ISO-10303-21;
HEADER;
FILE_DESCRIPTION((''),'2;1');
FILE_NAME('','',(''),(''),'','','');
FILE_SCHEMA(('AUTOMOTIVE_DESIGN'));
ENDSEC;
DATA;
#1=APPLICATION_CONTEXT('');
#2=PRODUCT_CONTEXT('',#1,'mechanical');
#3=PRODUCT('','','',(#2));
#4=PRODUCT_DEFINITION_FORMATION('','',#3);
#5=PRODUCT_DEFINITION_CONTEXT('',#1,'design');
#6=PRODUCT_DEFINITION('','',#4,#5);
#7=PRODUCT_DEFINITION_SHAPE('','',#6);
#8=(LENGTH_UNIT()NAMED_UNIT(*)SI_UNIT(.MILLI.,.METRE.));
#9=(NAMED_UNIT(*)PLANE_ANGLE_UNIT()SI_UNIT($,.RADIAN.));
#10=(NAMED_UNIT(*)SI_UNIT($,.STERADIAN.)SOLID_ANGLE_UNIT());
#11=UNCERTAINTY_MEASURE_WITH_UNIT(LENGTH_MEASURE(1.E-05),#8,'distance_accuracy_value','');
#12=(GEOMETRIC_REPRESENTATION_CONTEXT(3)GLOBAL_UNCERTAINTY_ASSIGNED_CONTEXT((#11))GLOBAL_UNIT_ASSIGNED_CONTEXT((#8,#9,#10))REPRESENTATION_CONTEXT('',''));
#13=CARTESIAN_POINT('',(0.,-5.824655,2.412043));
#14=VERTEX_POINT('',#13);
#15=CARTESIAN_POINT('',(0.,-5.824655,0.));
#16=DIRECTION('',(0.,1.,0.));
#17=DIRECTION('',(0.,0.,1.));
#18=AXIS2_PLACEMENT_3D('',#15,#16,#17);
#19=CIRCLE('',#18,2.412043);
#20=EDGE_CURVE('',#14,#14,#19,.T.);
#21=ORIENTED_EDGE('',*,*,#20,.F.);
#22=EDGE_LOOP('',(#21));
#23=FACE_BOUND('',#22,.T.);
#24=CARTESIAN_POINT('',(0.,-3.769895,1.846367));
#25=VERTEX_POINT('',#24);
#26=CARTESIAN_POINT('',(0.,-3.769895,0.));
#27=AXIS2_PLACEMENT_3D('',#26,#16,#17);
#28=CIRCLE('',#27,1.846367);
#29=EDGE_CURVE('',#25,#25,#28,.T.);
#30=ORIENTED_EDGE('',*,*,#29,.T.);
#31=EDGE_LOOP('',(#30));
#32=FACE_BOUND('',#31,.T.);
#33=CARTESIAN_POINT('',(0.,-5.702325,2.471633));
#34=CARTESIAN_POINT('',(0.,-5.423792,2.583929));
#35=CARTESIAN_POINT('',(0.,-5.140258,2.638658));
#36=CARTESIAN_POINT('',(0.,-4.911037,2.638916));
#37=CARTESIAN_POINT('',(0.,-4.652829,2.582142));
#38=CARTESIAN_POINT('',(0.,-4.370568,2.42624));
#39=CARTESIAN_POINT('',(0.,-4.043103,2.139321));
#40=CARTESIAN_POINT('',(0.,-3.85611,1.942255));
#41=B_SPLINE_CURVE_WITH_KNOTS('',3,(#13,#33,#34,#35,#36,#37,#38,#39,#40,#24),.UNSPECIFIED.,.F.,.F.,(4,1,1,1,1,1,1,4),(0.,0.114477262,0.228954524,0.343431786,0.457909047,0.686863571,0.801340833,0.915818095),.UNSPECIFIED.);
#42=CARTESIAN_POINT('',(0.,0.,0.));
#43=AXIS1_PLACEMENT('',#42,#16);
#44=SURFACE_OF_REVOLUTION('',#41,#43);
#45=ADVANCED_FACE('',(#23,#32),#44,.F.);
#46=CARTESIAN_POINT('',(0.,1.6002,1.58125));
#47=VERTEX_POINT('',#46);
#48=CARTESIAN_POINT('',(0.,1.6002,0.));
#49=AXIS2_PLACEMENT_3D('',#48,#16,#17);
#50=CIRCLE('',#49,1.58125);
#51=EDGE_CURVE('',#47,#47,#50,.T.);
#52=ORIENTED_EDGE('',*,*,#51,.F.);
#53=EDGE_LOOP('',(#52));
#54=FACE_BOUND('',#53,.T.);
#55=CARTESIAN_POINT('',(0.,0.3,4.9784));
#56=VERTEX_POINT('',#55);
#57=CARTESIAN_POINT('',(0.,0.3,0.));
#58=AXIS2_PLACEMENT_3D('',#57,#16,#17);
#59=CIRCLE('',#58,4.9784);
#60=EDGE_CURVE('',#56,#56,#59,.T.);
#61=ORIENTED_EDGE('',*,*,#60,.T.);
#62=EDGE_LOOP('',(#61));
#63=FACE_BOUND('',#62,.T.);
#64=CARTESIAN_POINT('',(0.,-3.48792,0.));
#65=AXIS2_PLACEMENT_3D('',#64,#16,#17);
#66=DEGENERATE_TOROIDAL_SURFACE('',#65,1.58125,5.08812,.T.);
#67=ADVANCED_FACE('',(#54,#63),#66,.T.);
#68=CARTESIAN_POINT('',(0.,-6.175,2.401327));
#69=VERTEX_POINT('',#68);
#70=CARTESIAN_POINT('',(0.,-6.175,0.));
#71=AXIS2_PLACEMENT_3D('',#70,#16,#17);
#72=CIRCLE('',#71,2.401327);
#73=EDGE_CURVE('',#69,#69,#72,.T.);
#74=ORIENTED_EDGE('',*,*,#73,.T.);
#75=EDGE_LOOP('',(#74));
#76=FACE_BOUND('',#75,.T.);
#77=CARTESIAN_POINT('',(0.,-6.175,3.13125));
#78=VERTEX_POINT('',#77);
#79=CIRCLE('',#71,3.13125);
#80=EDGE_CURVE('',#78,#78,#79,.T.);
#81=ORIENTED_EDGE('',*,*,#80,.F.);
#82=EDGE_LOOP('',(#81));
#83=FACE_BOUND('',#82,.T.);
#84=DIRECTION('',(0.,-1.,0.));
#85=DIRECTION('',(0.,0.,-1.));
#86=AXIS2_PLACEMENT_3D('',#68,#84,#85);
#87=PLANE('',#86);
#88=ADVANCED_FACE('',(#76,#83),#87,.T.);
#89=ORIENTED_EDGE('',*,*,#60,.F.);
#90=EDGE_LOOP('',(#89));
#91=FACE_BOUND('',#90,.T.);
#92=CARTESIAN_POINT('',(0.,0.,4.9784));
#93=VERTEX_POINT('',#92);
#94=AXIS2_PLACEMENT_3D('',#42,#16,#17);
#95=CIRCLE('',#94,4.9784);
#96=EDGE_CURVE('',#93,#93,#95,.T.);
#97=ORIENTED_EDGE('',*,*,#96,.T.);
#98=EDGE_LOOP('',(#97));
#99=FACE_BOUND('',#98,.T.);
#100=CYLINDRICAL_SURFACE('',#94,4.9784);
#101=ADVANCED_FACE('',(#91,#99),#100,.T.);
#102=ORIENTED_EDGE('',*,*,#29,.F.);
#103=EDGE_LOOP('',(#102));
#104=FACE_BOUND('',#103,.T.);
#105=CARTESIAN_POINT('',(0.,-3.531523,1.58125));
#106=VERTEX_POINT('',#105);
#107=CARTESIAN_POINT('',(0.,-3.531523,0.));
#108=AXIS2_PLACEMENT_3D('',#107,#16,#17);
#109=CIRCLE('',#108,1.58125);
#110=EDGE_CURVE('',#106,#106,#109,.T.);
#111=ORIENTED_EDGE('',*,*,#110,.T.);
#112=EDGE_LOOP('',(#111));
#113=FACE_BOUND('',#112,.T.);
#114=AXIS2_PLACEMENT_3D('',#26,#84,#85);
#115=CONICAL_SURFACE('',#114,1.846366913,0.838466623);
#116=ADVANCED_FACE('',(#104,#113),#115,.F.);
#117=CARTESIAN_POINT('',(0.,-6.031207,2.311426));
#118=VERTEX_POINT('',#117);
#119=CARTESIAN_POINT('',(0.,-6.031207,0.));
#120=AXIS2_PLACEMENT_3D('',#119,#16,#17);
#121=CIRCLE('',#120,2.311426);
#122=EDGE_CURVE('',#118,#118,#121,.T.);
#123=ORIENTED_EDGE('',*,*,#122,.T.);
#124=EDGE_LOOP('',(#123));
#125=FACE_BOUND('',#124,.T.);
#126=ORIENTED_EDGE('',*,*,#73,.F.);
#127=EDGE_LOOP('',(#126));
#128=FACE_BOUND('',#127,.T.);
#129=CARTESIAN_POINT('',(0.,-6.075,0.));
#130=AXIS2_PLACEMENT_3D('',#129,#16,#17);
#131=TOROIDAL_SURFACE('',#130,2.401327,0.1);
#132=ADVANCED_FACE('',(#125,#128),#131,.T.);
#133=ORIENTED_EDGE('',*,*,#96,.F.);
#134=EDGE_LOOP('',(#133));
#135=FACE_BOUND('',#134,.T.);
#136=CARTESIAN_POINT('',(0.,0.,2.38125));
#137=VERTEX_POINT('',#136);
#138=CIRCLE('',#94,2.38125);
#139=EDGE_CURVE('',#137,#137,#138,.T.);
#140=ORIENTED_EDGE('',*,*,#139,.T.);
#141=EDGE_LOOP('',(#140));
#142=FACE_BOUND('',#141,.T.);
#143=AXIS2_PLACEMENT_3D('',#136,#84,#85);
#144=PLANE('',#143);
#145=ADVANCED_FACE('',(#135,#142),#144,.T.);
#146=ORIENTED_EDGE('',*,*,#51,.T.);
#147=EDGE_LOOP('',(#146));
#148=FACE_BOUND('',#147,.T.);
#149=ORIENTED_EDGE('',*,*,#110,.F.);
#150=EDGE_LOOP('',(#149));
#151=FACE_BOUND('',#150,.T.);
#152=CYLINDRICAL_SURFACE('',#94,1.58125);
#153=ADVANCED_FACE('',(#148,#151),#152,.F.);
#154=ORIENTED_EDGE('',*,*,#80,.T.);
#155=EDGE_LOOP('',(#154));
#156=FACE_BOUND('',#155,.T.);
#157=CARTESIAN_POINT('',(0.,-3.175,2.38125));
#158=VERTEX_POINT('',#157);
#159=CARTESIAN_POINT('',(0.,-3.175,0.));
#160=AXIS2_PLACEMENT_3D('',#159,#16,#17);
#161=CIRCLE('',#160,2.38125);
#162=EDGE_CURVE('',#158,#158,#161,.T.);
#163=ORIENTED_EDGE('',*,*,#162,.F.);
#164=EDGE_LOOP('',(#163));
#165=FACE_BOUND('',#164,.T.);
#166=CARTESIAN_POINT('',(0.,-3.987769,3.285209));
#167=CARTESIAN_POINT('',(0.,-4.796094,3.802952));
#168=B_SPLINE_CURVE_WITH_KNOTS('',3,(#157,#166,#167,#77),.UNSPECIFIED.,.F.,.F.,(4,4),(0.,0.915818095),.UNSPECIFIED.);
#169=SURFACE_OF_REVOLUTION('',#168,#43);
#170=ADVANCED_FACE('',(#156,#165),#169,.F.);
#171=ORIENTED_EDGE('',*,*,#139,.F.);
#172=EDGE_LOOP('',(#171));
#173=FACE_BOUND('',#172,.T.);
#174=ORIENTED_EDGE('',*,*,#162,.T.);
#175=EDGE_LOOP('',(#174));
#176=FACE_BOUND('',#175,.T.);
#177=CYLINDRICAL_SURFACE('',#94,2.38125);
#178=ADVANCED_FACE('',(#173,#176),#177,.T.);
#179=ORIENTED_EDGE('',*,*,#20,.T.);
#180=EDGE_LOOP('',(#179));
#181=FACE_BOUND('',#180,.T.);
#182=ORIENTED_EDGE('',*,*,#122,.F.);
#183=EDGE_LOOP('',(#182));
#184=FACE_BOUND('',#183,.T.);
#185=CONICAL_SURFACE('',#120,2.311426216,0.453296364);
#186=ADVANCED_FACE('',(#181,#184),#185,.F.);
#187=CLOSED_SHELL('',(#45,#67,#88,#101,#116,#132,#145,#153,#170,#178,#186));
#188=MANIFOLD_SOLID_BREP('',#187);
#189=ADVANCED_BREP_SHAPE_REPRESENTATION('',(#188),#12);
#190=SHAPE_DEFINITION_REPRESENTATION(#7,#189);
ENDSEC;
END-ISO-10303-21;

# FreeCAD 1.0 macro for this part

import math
import FreeCAD as App
import Part
import Sketcher
from FreeCAD import Vector

doc = App.newDocument("Part")
params = doc.addObject("Spreadsheet::Sheet", "Params")
for row, (alias, value) in enumerate([
    ("sketch1_radius", "0.1 mm"),
    ("sketch1_width", "0.3 mm"),
    ("revolution_angle", "360 deg"),
], start=1):
    params.set(f"A{row}", alias)
    params.set(f"B{row}", "=" + value)
    params.setAlias(f"B{row}", alias)

body = doc.addObject("PartDesign::Body", "Body")

sketch1 = body.newObject("Sketcher::SketchObject", "Sketch")
sketch1.AttachmentSupport = (doc.getObject("YZ_Plane"), [""])
sketch1.MapMode = "FlatFace"
sketch1.addGeometry([
    Part.LineSegment(Vector(0, 2.38125, 0), Vector(-3.175, 2.38125, 0)),
    Part.BSplineCurve([Vector(-6.175, 3.13125, 0), Vector(-4.796094, 3.802952, 0), Vector(-3.987769, 3.285209, 0), Vector(-3.175, 2.38125, 0)], [4, 4], [0, 0.915818095], False, 3, [1, 1, 1, 1], False),
    Part.LineSegment(Vector(-6.175, 3.13125, 0), Vector(-6.175, 2.401327, 0)),
    Part.ArcOfCircle(Part.Circle(Vector(-6.075, 2.401327, 0), Vector(0, 0, 1), 0.1), math.radians(180), math.radians(295.971969)),
    Part.LineSegment(Vector(-6.031207, 2.311426, 0), Vector(-5.824655, 2.412043, 0)),
    Part.BSplineCurve([Vector(-5.824655, 2.412043, 0), Vector(-5.702325, 2.471633, 0), Vector(-5.423792, 2.583929, 0), Vector(-5.140258, 2.638658, 0), Vector(-4.911037, 2.638916, 0), Vector(-4.652829, 2.582142, 0), Vector(-4.370568, 2.42624, 0), Vector(-4.043103, 2.139321, 0), Vector(-3.85611, 1.942255, 0), Vector(-3.769895, 1.846367, 0)], [4, 1, 1, 1, 1, 1, 1, 4], [0, 0.114477262, 0.228954524, 0.343431786, 0.457909047, 0.686863571, 0.801340833, 0.915818095], False, 3, [1, 1, 1, 1, 1, 1, 1, 1, 1, 1], False),
    Part.LineSegment(Vector(-3.769895, 1.846367, 0), Vector(-3.531523, 1.58125, 0)),
    Part.LineSegment(Vector(-3.531523, 1.58125, 0), Vector(1.6002, 1.58125, 0)),
    Part.ArcOfCircle(Part.Circle(Vector(-3.48792, 1.58125, 0), Vector(0, 0, 1), 5.08812), math.radians(0), math.radians(41.886954)),
    Part.LineSegment(Vector(0.3, 4.9784, 0), Vector(0, 4.9784, 0)),
    Part.LineSegment(Vector(0, 4.9784, 0), Vector(0, 2.38125, 0)),
], False)
sketch1.addConstraint([
    Sketcher.Constraint("Block", 1),
    Sketcher.Constraint("Block", 5),
    Sketcher.Constraint("Coincident", 0, 2, 1, 2),
    Sketcher.Constraint("Coincident", 1, 1, 2, 1),
    Sketcher.Constraint("Tangent", 2, 2, 3, 1),
    Sketcher.Constraint("Tangent", 3, 2, 4, 1),
    Sketcher.Constraint("Coincident", 4, 2, 5, 1),
    Sketcher.Constraint("Coincident", 5, 2, 6, 1),
    Sketcher.Constraint("Coincident", 6, 2, 7, 1),
    Sketcher.Constraint("Coincident", 7, 2, 8, 1),
    Sketcher.Constraint("Coincident", 8, 2, 9, 1),
    Sketcher.Constraint("Coincident", 9, 2, 10, 1),
    Sketcher.Constraint("Coincident", 10, 2, 0, 1),
    Sketcher.Constraint("Horizontal", 0),
    Sketcher.Constraint("Vertical", 2),
    Sketcher.Constraint("Horizontal", 7),
    Sketcher.Constraint("Horizontal", 9),
    Sketcher.Constraint("Vertical", 10),
    Sketcher.Constraint("PointOnObject", 9, 2, -2),
    Sketcher.Constraint("Horizontal", 8, 3, 6, 2),
    Sketcher.Constraint("Radius", 3, 0.1),
    Sketcher.Constraint("DistanceX", 9, 2, 9, 1, 0.3),
    Sketcher.Constraint("DistanceY", 8, 3, 0, 2, 0.8),
    Sketcher.Constraint("Radius", 8, 5.08812),
    Sketcher.Constraint("DistanceY", 10, 2, 10, 1, 2.59715),
    Sketcher.Constraint("DistanceY", 3, 2, 3, 3, 0.089901),
    Sketcher.Constraint("DistanceX", 7, 1, 7, 2, 5.131723),
])
sketch1.setExpression("Constraints[20]", "Params.sketch1_radius")
sketch1.setExpression("Constraints[21]", "Params.sketch1_width")
revolution = body.newObject("PartDesign::Revolution", "Revolution")
revolution.Profile = sketch1
revolution.ReferenceAxis = (sketch1, ["H_Axis"])
revolution.setExpression("Angle", "Params.revolution_angle")

doc.recompute()
